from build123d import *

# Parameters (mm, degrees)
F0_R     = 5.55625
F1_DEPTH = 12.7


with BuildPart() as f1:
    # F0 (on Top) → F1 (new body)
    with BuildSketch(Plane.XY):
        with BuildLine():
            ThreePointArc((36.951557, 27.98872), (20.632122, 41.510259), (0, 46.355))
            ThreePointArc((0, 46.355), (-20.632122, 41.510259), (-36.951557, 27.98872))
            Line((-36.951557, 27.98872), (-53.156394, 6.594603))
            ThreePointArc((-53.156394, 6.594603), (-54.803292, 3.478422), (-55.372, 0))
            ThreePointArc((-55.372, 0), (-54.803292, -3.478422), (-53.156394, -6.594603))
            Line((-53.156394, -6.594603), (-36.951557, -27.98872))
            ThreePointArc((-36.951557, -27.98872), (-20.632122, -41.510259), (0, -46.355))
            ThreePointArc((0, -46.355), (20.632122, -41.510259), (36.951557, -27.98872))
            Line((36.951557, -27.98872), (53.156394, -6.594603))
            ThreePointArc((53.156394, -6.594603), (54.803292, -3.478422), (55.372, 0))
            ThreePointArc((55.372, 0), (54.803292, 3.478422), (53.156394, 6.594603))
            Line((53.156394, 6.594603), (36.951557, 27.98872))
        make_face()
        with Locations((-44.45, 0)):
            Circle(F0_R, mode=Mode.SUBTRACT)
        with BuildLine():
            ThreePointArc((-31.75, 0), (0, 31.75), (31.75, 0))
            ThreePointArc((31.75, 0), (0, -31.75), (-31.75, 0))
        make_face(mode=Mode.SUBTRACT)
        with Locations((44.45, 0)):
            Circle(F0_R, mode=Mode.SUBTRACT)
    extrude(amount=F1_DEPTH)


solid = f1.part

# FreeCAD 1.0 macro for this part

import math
import FreeCAD as App
import Part
import Sketcher
Q = App.Units.Quantity

doc = App.newDocument("Part")
params = doc.addObject("Spreadsheet::Sheet", "Params")
for row, (alias, value) in enumerate([
    ("sketch1_diameter", "2.5 in"),
    ("sketch1_diameter2", "0.4375 in"),
    ("sketch1_radius", "1.8249998 in"),
    ("pad1_length", "0.5 in"),
], start=1):
    params.set(f"A{row}", alias)
    params.set(f"B{row}", "=" + value)
    params.setAlias(f"B{row}", alias)

body = doc.addObject("PartDesign::Body", "Body")

# Sketch on XY plane
sketch1 = body.newObject("Sketcher::SketchObject", "Sketch")
sketch1.AttachmentSupport = (doc.getObject("XY_Plane"), [""])
sketch1.MapMode = "FlatFace"
sketch1.addGeometry([
    Part.ArcOfCircle(Part.Circle(App.Vector(0, 0, 0), App.Vector(0, 0, 1), 46), math.radians(37), math.radians(90)),  # 0
    Part.ArcOfCircle(Part.Circle(App.Vector(0, 0, 0), App.Vector(0, 0, 1), 46), math.radians(90), math.radians(143)),  # 1
    Part.LineSegment(App.Vector(-37, 28, 0), App.Vector(-53, 7, 0)),  # 2
    Part.ArcOfCircle(Part.Circle(App.Vector(-44, 0, 0), App.Vector(0, 0, 1), 11), math.radians(143), math.radians(180)),  # 3
    Part.ArcOfCircle(Part.Circle(App.Vector(-44, 0, 0), App.Vector(0, 0, 1), 11), math.radians(-180), math.radians(-143)),  # 4
    Part.LineSegment(App.Vector(-53, -7, 0), App.Vector(-37, -28, 0)),  # 5
    Part.ArcOfCircle(Part.Circle(App.Vector(0, 0, 0), App.Vector(0, 0, 1), 46), math.radians(-143), math.radians(-90)),  # 6
    Part.ArcOfCircle(Part.Circle(App.Vector(0, 0, 0), App.Vector(0, 0, 1), 46), math.radians(-90), math.radians(-37)),  # 7
    Part.LineSegment(App.Vector(37, -28, 0), App.Vector(53, -7, 0)),  # 8
    Part.ArcOfCircle(Part.Circle(App.Vector(44, 0, 0), App.Vector(0, 0, 1), 11), math.radians(-37), math.radians(0)),  # 9
    Part.ArcOfCircle(Part.Circle(App.Vector(44, 0, 0), App.Vector(0, 0, 1), 11), math.radians(0), math.radians(37)),  # 10
    Part.LineSegment(App.Vector(53, 7, 0), App.Vector(37, 28, 0)),  # 11
    Part.Circle(App.Vector(-44, 0, 0), App.Vector(0, 0, 1), 6),  # 12
    Part.Circle(App.Vector(0, 0, 0), App.Vector(0, 0, 1), 32),  # 13
    Part.Circle(App.Vector(44, 0, 0), App.Vector(0, 0, 1), 6),  # 14
], False)
sketch1.addConstraint([
    Sketcher.Constraint("Tangent", 0, 2, 1, 1),
    Sketcher.Constraint("Tangent", 1, 2, 2, 1),
    Sketcher.Constraint("Tangent", 2, 2, 3, 1),
    Sketcher.Constraint("Tangent", 3, 2, 4, 1),
    Sketcher.Constraint("Tangent", 4, 2, 5, 1),
    Sketcher.Constraint("Tangent", 5, 2, 6, 1),
    Sketcher.Constraint("Tangent", 6, 2, 7, 1),
    Sketcher.Constraint("Tangent", 7, 2, 8, 1),
    Sketcher.Constraint("Tangent", 8, 2, 9, 1),
    Sketcher.Constraint("Tangent", 9, 2, 10, 1),
    Sketcher.Constraint("Tangent", 10, 2, 11, 1),
    Sketcher.Constraint("Tangent", 11, 2, 0, 1),
    Sketcher.Constraint("Coincident", 0, 3, -1, 1),
    Sketcher.Constraint("Coincident", 6, 3, -1, 1),
    Sketcher.Constraint("Coincident", 13, 3, -1, 1),
    Sketcher.Constraint("Coincident", 12, 3, 3, 3),
    Sketcher.Constraint("Coincident", 14, 3, 9, 3),
    Sketcher.Constraint("Equal", 0, 1),
    Sketcher.Constraint("Equal", 3, 4),
    Sketcher.Constraint("Equal", 1, 6),
    Sketcher.Constraint("Equal", 6, 7),
    Sketcher.Constraint("Equal", 4, 9),
    Sketcher.Constraint("Equal", 9, 10),
    Sketcher.Constraint("Equal", 12, 14),
    Sketcher.Constraint("Symmetric", 3, 3, 9, 3, -1, 1),
    Sketcher.Constraint("PointOnObject", 12, 3, -1),
    Sketcher.Constraint("PointOnObject", 0, 2, -2),
    Sketcher.Constraint("PointOnObject", 3, 2, -1),
    Sketcher.Constraint("PointOnObject", 6, 2, -2),
    Sketcher.Constraint("PointOnObject", 9, 2, -1),
    Sketcher.Constraint("Diameter", 13, Q("2.5 in")),
    Sketcher.Constraint("Diameter", 12, Q("0.4375 in")),
    Sketcher.Constraint("Radius", 0, Q("1.8249998 in")),
    Sketcher.Constraint("DistanceX", 12, 3, -1, 1, Q("1.75 in")),
    Sketcher.Constraint("DistanceX", 3, 2, -1, 1, Q("2.18 in")),
])
sketch1.setExpression("Constraints[30]", "Params.sketch1_diameter")
sketch1.setExpression("Constraints[31]", "Params.sketch1_diameter2")
sketch1.setExpression("Constraints[32]", "Params.sketch1_radius")
pad1 = body.newObject("PartDesign::Pad", "Pad")
pad1.Profile = sketch1
pad1.setExpression("Length", "Params.pad1_length")

doc.recompute()
